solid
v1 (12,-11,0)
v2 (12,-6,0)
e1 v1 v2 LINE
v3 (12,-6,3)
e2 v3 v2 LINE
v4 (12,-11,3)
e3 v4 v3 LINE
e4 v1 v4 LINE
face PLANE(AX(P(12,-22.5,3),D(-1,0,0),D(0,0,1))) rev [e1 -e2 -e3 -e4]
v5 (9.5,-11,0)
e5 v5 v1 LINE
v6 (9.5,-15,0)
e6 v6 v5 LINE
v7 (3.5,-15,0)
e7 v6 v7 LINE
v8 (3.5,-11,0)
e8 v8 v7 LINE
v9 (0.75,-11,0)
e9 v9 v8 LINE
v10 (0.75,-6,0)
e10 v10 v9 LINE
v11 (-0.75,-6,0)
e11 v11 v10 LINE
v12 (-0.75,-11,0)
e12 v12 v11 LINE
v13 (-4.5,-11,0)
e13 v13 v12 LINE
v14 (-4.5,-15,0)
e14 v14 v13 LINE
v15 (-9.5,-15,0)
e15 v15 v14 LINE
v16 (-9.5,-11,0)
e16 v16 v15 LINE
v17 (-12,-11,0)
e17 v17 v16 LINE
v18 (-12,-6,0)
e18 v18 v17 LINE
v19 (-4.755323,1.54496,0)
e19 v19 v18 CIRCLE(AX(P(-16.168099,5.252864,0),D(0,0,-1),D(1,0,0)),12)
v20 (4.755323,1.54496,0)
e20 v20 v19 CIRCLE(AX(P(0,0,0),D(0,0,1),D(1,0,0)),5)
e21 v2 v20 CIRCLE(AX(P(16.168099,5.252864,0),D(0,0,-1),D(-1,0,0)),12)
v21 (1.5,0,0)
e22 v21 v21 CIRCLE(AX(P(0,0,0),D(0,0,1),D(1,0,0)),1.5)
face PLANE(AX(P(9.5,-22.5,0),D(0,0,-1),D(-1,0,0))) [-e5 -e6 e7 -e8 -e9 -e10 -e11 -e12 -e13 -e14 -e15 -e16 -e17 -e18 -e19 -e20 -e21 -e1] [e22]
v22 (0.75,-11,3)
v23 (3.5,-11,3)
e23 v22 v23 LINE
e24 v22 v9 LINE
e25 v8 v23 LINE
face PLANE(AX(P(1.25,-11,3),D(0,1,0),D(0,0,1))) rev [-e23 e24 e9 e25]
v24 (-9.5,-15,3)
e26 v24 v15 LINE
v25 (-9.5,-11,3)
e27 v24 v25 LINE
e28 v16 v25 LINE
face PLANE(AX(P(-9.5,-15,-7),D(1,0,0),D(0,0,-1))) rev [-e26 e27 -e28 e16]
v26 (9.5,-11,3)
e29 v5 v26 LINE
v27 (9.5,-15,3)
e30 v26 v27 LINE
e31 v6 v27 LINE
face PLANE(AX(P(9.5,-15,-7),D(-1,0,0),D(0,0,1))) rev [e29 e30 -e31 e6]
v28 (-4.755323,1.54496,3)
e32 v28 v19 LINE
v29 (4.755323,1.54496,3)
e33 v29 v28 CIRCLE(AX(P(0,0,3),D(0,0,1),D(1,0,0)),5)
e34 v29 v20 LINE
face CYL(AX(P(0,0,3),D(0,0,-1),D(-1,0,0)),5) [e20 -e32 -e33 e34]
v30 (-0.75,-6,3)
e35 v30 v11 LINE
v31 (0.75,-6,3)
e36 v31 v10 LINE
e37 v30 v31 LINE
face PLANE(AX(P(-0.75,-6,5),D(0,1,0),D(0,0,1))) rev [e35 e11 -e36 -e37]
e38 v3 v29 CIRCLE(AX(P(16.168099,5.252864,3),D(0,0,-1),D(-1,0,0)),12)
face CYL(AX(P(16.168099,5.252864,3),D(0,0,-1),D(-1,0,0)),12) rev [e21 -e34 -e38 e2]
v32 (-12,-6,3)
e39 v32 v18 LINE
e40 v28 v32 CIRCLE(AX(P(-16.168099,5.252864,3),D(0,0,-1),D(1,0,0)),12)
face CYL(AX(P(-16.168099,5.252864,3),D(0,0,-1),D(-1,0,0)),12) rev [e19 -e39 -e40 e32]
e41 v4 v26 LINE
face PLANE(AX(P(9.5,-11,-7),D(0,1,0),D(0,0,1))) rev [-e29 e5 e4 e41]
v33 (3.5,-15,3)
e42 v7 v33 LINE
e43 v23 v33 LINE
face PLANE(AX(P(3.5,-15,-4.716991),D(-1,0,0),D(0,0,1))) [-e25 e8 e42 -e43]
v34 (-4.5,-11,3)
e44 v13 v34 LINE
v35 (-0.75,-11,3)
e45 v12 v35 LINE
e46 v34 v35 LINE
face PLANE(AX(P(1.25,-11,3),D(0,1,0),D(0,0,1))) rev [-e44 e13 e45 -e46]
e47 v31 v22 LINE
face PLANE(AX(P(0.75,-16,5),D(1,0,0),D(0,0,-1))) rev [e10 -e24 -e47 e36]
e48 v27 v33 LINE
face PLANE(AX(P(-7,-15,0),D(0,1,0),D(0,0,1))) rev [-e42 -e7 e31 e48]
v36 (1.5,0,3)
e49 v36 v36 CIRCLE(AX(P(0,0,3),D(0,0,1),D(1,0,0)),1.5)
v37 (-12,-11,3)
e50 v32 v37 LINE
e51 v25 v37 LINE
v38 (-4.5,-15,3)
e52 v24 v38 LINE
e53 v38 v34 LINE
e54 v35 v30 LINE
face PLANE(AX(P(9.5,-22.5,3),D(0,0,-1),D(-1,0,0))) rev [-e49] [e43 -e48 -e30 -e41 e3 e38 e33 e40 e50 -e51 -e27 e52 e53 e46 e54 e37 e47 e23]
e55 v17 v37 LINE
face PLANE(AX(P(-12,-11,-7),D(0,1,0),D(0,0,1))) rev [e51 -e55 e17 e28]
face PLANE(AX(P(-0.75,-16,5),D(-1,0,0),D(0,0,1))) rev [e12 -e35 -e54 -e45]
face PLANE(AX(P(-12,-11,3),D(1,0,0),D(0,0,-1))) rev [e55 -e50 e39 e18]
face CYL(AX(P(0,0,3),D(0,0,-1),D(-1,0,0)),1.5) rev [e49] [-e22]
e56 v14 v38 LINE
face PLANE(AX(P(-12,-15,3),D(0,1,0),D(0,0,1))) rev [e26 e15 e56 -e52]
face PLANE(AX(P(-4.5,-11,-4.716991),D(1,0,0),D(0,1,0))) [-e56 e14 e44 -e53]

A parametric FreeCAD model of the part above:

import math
import FreeCAD as App
import Part
import Sketcher

V = App.Vector


def add_polygon(sketch, points):
    """Adds a closed chain of lines whose ends are joined by coincident constraints."""
    first, n = sketch.GeometryCount, len(points)
    for a, b in zip(points, points[1:] + points[:1]):
        sketch.addGeometry(Part.LineSegment(App.Vector(*a, 0), App.Vector(*b, 0)), False)
    for i in range(n):
        sketch.addConstraint(Sketcher.Constraint("Coincident", first + i, 2, first + (i + 1) % n, 1))

doc = App.newDocument("Part")
body = doc.addObject("PartDesign::Body", "Body")

# Sketch on XY plane
sketch1 = doc.addObject("Sketcher::SketchObject", "Sketch")
body.addObject(sketch1)
sketch1.AttachmentSupport = (doc.XY_Plane, [""])
sketch1.MapMode = "FlatFace"
sketch1.addGeometry(Part.LineSegment(V(-7, -11, 0), V(-1.2, -11, 0)), False)
sketch1.addGeometry(Part.LineSegment(V(-1.2, -11, 0), V(-1.2, -5.5, 0)), False)
sketch1.addGeometry(Part.LineSegment(V(-1.2, -5.5, 0), V(1.2, -5.5, 0)), False)
sketch1.addGeometry(Part.LineSegment(V(1.2, -5.5, 0), V(1.2, -11, 0)), False)
sketch1.addGeometry(Part.LineSegment(V(1.2, -11, 0), V(6, -11, 0)), False)
sketch1.addGeometry(Part.LineSegment(V(6, -11, 0), V(6, -22.5, 0)), False)
sketch1.addGeometry(Part.ArcOfCircle(Part.Circle(V(8.5, -22.5, 0), V(0, 0, 1), 2.5), math.radians(180), math.radians(270)), False)
sketch1.addGeometry(Part.LineSegment(V(8.5, -25, 0), V(9.5, -25, 0)), False)
sketch1.addGeometry(Part.ArcOfCircle(Part.Circle(V(9.5, -22.5, 0), V(0, 0, 1), 2.5), math.radians(-90), math.radians(0)), False)
sketch1.addGeometry(Part.LineSegment(V(12, -22.5, 0), V(12, -6, 0)), False)
sketch1.addGeometry(Part.ArcOfCircle(Part.Circle(V(16.2, 5.3, 0), V(0, 0, 1), 12), math.radians(-162), math.radians(-110)), False)
sketch1.addGeometry(Part.ArcOfCircle(Part.Circle(V(0, 0, 0), V(0, 0, 1), 5), math.radians(18), math.radians(162)), False)
sketch1.addGeometry(Part.ArcOfCircle(Part.Circle(V(-16.2, 5.3, 0), V(0, 0, 1), 12), math.radians(-70), math.radians(-18)), False)
sketch1.addGeometry(Part.LineSegment(V(-12, -6, 0), V(-12, -15, 0)), False)
sketch1.addGeometry(Part.LineSegment(V(-12, -15, 0), V(-7, -15, 0)), False)
sketch1.addGeometry(Part.LineSegment(V(-7, -15, 0), V(-7, -11, 0)), False)
sketch1.addGeometry(Part.Circle(V(9, -22, 0), V(0, 0, 1), 1), False)
sketch1.addGeometry(Part.Circle(V(0, 0, 0), V(0, 0, 1), 1.5), False)
sketch1.addConstraint(Sketcher.Constraint("Coincident", 0, 2, 1, 1))
sketch1.addConstraint(Sketcher.Constraint("Coincident", 1, 2, 2, 1))
sketch1.addConstraint(Sketcher.Constraint("Coincident", 2, 2, 3, 1))
sketch1.addConstraint(Sketcher.Constraint("Coincident", 3, 2, 4, 1))
sketch1.addConstraint(Sketcher.Constraint("Coincident", 4, 2, 5, 1))
sketch1.addConstraint(Sketcher.Constraint("Tangent", 5, 2, 6, 1))
sketch1.addConstraint(Sketcher.Constraint("Tangent", 6, 2, 7, 1))
sketch1.addConstraint(Sketcher.Constraint("Tangent", 7, 2, 8, 1))
sketch1.addConstraint(Sketcher.Constraint("Tangent", 8, 2, 9, 1))
sketch1.addConstraint(Sketcher.Constraint("Coincident", 9, 2, 10, 2))
sketch1.addConstraint(Sketcher.Constraint("Tangent", 10, 1, 11, 1))
sketch1.addConstraint(Sketcher.Constraint("Tangent", 11, 2, 12, 2))
sketch1.addConstraint(Sketcher.Constraint("Coincident", 12, 1, 13, 1))
sketch1.addConstraint(Sketcher.Constraint("Coincident", 13, 2, 14, 1))
sketch1.addConstraint(Sketcher.Constraint("Coincident", 14, 2, 15, 1))
sketch1.addConstraint(Sketcher.Constraint("Coincident", 15, 2, 0, 1))
sketch1.addConstraint(Sketcher.Constraint("Horizontal", 0))
sketch1.addConstraint(Sketcher.Constraint("Vertical", 1))
sketch1.addConstraint(Sketcher.Constraint("Horizontal", 2))
sketch1.addConstraint(Sketcher.Constraint("Vertical", 3))
sketch1.addConstraint(Sketcher.Constraint("Horizontal", 4))
sketch1.addConstraint(Sketcher.Constraint("Vertical", 5))
sketch1.addConstraint(Sketcher.Constraint("Horizontal", 7))
sketch1.addConstraint(Sketcher.Constraint("Vertical", 9))
sketch1.addConstraint(Sketcher.Constraint("Vertical", 13))
sketch1.addConstraint(Sketcher.Constraint("Horizontal", 14))
sketch1.addConstraint(Sketcher.Constraint("Vertical", 15))
sketch1.addConstraint(Sketcher.Constraint("Coincident", 11, 3, -1, 1))
sketch1.addConstraint(Sketcher.Constraint("Coincident", 17, 3, -1, 1))
sketch1.addConstraint(Sketcher.Constraint("Equal", 6, 8))
sketch1.addConstraint(Sketcher.Constraint("Equal", 10, 12))
sketch1.addConstraint(Sketcher.Constraint("Symmetric", 0, 2, 3, 2, -2))
sketch1.addConstraint(Sketcher.Constraint("Symmetric", 9, 2, 12, 1, -2))
sketch1.addConstraint(Sketcher.Constraint("Diameter", 16, 2.0))
sketch1.addConstraint(Sketcher.Constraint("Diameter", 17, 3.0))
sketch1.addConstraint(Sketcher.Constraint("Radius", 10, 12.0))
sketch1.addConstraint(Sketcher.Constraint("Radius", 11, 5.0))
sketch1.addConstraint(Sketcher.Constraint("Radius", 6, 2.5))
sketch1.addConstraint(Sketcher.Constraint("DistanceX", 7, 1, 7, 2, 1.0))
sketch1.addConstraint(Sketcher.Constraint("DistanceX", 14, 1, 14, 2, 5.0))
sketch1.addConstraint(Sketcher.Constraint("DistanceY", 13, 2, 13, 1, 9.0))
sketch1.addConstraint(Sketcher.Constraint("DistanceY", 15, 1, 15, 2, 4.0))
sketch1.addConstraint(Sketcher.Constraint("DistanceX", 2, 1, 2, 2, 2.5))
sketch1.addConstraint(Sketcher.Constraint("DistanceY", 1, 1, 1, 2, 5.5))
sketch1.addConstraint(Sketcher.Constraint("DistanceY", 5, 2, 5, 1, 11.5))
sketch1.addConstraint(Sketcher.Constraint("DistanceX", -1, 1, 16, 3, 9.0))
sketch1.addConstraint(Sketcher.Constraint("DistanceY", 16, 3, -1, 1, 22.0))
sketch1.addConstraint(Sketcher.Constraint("DistanceY", 0, 2, -1, 1, 11.0))
sketch1.addConstraint(Sketcher.Constraint("DistanceX", -1, 1, 4, 2, 6.0))
pad1 = doc.addObject("PartDesign::Pad", "Pad")
body.addObject(pad1)
pad1.Profile = sketch1
pad1.Length = 3

# Sketch on XY plane
sketch2 = doc.addObject("Sketcher::SketchObject", "Sketch001")
body.addObject(sketch2)
sketch2.AttachmentSupport = (doc.XY_Plane, [""])
sketch2.MapMode = "FlatFace"
sketch2.AttachmentOffset = App.Placement(V(0, 0, 3), App.Rotation())
add_polygon(sketch2, [(-7, -15), (-7, -26), (14, -26), (14, -15)])  # lines 0-3
sketch2.addConstraint(Sketcher.Constraint("Vertical", 0))
sketch2.addConstraint(Sketcher.Constraint("Horizontal", 1))
sketch2.addConstraint(Sketcher.Constraint("Vertical", 2))
sketch2.addConstraint(Sketcher.Constraint("Horizontal", 3))
sketch2.addConstraint(Sketcher.Constraint("DistanceX", 0, 2, -1, 1, 7.0))
sketch2.addConstraint(Sketcher.Constraint("DistanceY", 2, 2, -1, 1, 15.0))
sketch2.addConstraint(Sketcher.Constraint("DistanceX", 1, 1, 1, 2, 21.215315))
sketch2.addConstraint(Sketcher.Constraint("DistanceY", 0, 2, 0, 1, 10.620784))
pocket1 = doc.addObject("PartDesign::Pocket", "Pocket")
body.addObject(pocket1)
pocket1.Profile = sketch2
pocket1.Type = "ThroughAll"

# Sketch on XY plane
sketch3 = doc.addObject("Sketcher::SketchObject", "Sketch002")
body.addObject(sketch3)
sketch3.AttachmentSupport = (doc.XY_Plane, [""])
sketch3.MapMode = "FlatFace"
sketch3.AttachmentOffset = App.Placement(V(0, 0, 3), App.Rotation())
add_polygon(sketch3, [(9.5, -11), (9.5, -15), (12, -15), (12, -11)])  # lines 0-3
add_polygon(sketch3, [(-12, -11), (-12, -15), (-9.5, -15), (-9.5, -11)])  # lines 4-7
sketch3.addConstraint(Sketcher.Constraint("Vertical", 0))
sketch3.addConstraint(Sketcher.Constraint("Horizontal", 1))
sketch3.addConstraint(Sketcher.Constraint("Vertical", 2))
sketch3.addConstraint(Sketcher.Constraint("Horizontal", 3))
sketch3.addConstraint(Sketcher.Constraint("Vertical", 4))
sketch3.addConstraint(Sketcher.Constraint("Horizontal", 5))
sketch3.addConstraint(Sketcher.Constraint("Vertical", 6))
sketch3.addConstraint(Sketcher.Constraint("Horizontal", 7))
sketch3.addConstraint(Sketcher.Constraint("Symmetric", 1, 2, 4, 2, -2))
sketch3.addConstraint(Sketcher.Constraint("Symmetric", 3, 2, 6, 2, -2))
sketch3.addConstraint(Sketcher.Constraint("DistanceY", 0, 2, 0, 1, 4.0))
sketch3.addConstraint(Sketcher.Constraint("DistanceX", 1, 1, 1, 2, 2.5))
sketch3.addConstraint(Sketcher.Constraint("DistanceY", 0, 2, -1, 1, 15.0))
sketch3.addConstraint(Sketcher.Constraint("DistanceX", -1, 1, 1, 2, 12.0))
pocket2 = doc.addObject("PartDesign::Pocket", "Pocket001")
body.addObject(pocket2)
pocket2.Profile = sketch3
pocket2.Length = 10

# Sketch on XY plane
sketch4 = doc.addObject("Sketcher::SketchObject", "Sketch003")
body.addObject(sketch4)
sketch4.AttachmentSupport = (doc.XY_Plane, [""])
sketch4.MapMode = "FlatFace"
sketch4.AttachmentOffset = App.Placement(V(0, 0, 3), App.Rotation())
add_polygon(sketch4, [(-7, -11), (-7, -15), (-4.5, -15), (-4.5, -11)])  # lines 0-3
add_polygon(sketch4, [(3.5, -11), (3.5, -15), (6, -15), (6, -11)])  # lines 4-7
sketch4.addConstraint(Sketcher.Constraint("Vertical", 0))
sketch4.addConstraint(Sketcher.Constraint("Horizontal", 1))
sketch4.addConstraint(Sketcher.Constraint("Vertical", 2))
sketch4.addConstraint(Sketcher.Constraint("Horizontal", 3))
sketch4.addConstraint(Sketcher.Constraint("Vertical", 4))
sketch4.addConstraint(Sketcher.Constraint("Horizontal", 5))
sketch4.addConstraint(Sketcher.Constraint("Vertical", 6))
sketch4.addConstraint(Sketcher.Constraint("Horizontal", 7))
sketch4.addConstraint(Sketcher.Constraint("Horizontal", 1, 2, 4, 2))
sketch4.addConstraint(Sketcher.Constraint("Horizontal", 3, 2, 6, 2))
sketch4.addConstraint(Sketcher.Constraint("Equal", 3, 5))
sketch4.addConstraint(Sketcher.Constraint("DistanceY", 0, 2, 0, 1, 4.0))
sketch4.addConstraint(Sketcher.Constraint("DistanceX", 1, 1, 1, 2, 2.5))
sketch4.addConstraint(Sketcher.Constraint("DistanceX", 0, 2, -1, 1, 7.0))
sketch4.addConstraint(Sketcher.Constraint("DistanceY", 0, 2, -1, 1, 15.0))
sketch4.addConstraint(Sketcher.Constraint("DistanceX", -1, 1, 5, 2, 6.0))
pad2 = doc.addObject("PartDesign::Pad", "Pad001")
body.addObject(pad2)
pad2.Profile = sketch4
pad2.Length = 3
pad2.Reversed = True

# Sketch on XY plane
sketch5 = doc.addObject("Sketcher::SketchObject", "Sketch004")
body.addObject(sketch5)
sketch5.AttachmentSupport = (doc.XY_Plane, [""])
sketch5.MapMode = "FlatFace"
add_polygon(sketch5, [(1.2, -5.5), (1.2, -11), (-1.2, -11), (-1.2, -5.5)])  # lines 0-3
sketch5.addConstraint(Sketcher.Constraint("Vertical", 0))
sketch5.addConstraint(Sketcher.Constraint("Horizontal", 1))
sketch5.addConstraint(Sketcher.Constraint("Vertical", 2))
sketch5.addConstraint(Sketcher.Constraint("Horizontal", 3))
sketch5.addConstraint(Sketcher.Constraint("DistanceX", 1, 2, 1, 1, 2.5))
sketch5.addConstraint(Sketcher.Constraint("DistanceY", 0, 2, 0, 1, 5.5))
sketch5.addConstraint(Sketcher.Constraint("DistanceY", 0, 2, -1, 1, 11.0))
sketch5.addConstraint(Sketcher.Constraint("DistanceX", -1, 1, 0, 2, 1.25))
pad3 = doc.addObject("PartDesign::Pad", "Pad002")
body.addObject(pad3)
pad3.Profile = sketch5
pad3.Length = 3

# Sketch on XY plane
sketch6 = doc.addObject("Sketcher::SketchObject", "Sketch005")
body.addObject(sketch6)
sketch6.AttachmentSupport = (doc.XY_Plane, [""])
sketch6.MapMode = "FlatFace"
add_polygon(sketch6, [(0.8, -6), (0.8, -16), (-0.8, -16), (-0.8, -6)])  # lines 0-3
sketch6.addConstraint(Sketcher.Constraint("Vertical", 0))
sketch6.addConstraint(Sketcher.Constraint("Horizontal", 1))
sketch6.addConstraint(Sketcher.Constraint("Vertical", 2))
sketch6.addConstraint(Sketcher.Constraint("Horizontal", 3))
sketch6.addConstraint(Sketcher.Constraint("DistanceY", 0, 2, 0, 1, 10.0))
sketch6.addConstraint(Sketcher.Constraint("DistanceX", 1, 2, 1, 1, 1.5))
sketch6.addConstraint(Sketcher.Constraint("DistanceY", 0, 2, -1, 1, 16.0))
sketch6.addConstraint(Sketcher.Constraint("DistanceX", -1, 1, 0, 2, 0.75))
pocket3 = doc.addObject("PartDesign::Pocket", "Pocket002")
body.addObject(pocket3)
pocket3.Profile = sketch6
pocket3.Length = 5
pocket3.Reversed = True

doc.recompute()
